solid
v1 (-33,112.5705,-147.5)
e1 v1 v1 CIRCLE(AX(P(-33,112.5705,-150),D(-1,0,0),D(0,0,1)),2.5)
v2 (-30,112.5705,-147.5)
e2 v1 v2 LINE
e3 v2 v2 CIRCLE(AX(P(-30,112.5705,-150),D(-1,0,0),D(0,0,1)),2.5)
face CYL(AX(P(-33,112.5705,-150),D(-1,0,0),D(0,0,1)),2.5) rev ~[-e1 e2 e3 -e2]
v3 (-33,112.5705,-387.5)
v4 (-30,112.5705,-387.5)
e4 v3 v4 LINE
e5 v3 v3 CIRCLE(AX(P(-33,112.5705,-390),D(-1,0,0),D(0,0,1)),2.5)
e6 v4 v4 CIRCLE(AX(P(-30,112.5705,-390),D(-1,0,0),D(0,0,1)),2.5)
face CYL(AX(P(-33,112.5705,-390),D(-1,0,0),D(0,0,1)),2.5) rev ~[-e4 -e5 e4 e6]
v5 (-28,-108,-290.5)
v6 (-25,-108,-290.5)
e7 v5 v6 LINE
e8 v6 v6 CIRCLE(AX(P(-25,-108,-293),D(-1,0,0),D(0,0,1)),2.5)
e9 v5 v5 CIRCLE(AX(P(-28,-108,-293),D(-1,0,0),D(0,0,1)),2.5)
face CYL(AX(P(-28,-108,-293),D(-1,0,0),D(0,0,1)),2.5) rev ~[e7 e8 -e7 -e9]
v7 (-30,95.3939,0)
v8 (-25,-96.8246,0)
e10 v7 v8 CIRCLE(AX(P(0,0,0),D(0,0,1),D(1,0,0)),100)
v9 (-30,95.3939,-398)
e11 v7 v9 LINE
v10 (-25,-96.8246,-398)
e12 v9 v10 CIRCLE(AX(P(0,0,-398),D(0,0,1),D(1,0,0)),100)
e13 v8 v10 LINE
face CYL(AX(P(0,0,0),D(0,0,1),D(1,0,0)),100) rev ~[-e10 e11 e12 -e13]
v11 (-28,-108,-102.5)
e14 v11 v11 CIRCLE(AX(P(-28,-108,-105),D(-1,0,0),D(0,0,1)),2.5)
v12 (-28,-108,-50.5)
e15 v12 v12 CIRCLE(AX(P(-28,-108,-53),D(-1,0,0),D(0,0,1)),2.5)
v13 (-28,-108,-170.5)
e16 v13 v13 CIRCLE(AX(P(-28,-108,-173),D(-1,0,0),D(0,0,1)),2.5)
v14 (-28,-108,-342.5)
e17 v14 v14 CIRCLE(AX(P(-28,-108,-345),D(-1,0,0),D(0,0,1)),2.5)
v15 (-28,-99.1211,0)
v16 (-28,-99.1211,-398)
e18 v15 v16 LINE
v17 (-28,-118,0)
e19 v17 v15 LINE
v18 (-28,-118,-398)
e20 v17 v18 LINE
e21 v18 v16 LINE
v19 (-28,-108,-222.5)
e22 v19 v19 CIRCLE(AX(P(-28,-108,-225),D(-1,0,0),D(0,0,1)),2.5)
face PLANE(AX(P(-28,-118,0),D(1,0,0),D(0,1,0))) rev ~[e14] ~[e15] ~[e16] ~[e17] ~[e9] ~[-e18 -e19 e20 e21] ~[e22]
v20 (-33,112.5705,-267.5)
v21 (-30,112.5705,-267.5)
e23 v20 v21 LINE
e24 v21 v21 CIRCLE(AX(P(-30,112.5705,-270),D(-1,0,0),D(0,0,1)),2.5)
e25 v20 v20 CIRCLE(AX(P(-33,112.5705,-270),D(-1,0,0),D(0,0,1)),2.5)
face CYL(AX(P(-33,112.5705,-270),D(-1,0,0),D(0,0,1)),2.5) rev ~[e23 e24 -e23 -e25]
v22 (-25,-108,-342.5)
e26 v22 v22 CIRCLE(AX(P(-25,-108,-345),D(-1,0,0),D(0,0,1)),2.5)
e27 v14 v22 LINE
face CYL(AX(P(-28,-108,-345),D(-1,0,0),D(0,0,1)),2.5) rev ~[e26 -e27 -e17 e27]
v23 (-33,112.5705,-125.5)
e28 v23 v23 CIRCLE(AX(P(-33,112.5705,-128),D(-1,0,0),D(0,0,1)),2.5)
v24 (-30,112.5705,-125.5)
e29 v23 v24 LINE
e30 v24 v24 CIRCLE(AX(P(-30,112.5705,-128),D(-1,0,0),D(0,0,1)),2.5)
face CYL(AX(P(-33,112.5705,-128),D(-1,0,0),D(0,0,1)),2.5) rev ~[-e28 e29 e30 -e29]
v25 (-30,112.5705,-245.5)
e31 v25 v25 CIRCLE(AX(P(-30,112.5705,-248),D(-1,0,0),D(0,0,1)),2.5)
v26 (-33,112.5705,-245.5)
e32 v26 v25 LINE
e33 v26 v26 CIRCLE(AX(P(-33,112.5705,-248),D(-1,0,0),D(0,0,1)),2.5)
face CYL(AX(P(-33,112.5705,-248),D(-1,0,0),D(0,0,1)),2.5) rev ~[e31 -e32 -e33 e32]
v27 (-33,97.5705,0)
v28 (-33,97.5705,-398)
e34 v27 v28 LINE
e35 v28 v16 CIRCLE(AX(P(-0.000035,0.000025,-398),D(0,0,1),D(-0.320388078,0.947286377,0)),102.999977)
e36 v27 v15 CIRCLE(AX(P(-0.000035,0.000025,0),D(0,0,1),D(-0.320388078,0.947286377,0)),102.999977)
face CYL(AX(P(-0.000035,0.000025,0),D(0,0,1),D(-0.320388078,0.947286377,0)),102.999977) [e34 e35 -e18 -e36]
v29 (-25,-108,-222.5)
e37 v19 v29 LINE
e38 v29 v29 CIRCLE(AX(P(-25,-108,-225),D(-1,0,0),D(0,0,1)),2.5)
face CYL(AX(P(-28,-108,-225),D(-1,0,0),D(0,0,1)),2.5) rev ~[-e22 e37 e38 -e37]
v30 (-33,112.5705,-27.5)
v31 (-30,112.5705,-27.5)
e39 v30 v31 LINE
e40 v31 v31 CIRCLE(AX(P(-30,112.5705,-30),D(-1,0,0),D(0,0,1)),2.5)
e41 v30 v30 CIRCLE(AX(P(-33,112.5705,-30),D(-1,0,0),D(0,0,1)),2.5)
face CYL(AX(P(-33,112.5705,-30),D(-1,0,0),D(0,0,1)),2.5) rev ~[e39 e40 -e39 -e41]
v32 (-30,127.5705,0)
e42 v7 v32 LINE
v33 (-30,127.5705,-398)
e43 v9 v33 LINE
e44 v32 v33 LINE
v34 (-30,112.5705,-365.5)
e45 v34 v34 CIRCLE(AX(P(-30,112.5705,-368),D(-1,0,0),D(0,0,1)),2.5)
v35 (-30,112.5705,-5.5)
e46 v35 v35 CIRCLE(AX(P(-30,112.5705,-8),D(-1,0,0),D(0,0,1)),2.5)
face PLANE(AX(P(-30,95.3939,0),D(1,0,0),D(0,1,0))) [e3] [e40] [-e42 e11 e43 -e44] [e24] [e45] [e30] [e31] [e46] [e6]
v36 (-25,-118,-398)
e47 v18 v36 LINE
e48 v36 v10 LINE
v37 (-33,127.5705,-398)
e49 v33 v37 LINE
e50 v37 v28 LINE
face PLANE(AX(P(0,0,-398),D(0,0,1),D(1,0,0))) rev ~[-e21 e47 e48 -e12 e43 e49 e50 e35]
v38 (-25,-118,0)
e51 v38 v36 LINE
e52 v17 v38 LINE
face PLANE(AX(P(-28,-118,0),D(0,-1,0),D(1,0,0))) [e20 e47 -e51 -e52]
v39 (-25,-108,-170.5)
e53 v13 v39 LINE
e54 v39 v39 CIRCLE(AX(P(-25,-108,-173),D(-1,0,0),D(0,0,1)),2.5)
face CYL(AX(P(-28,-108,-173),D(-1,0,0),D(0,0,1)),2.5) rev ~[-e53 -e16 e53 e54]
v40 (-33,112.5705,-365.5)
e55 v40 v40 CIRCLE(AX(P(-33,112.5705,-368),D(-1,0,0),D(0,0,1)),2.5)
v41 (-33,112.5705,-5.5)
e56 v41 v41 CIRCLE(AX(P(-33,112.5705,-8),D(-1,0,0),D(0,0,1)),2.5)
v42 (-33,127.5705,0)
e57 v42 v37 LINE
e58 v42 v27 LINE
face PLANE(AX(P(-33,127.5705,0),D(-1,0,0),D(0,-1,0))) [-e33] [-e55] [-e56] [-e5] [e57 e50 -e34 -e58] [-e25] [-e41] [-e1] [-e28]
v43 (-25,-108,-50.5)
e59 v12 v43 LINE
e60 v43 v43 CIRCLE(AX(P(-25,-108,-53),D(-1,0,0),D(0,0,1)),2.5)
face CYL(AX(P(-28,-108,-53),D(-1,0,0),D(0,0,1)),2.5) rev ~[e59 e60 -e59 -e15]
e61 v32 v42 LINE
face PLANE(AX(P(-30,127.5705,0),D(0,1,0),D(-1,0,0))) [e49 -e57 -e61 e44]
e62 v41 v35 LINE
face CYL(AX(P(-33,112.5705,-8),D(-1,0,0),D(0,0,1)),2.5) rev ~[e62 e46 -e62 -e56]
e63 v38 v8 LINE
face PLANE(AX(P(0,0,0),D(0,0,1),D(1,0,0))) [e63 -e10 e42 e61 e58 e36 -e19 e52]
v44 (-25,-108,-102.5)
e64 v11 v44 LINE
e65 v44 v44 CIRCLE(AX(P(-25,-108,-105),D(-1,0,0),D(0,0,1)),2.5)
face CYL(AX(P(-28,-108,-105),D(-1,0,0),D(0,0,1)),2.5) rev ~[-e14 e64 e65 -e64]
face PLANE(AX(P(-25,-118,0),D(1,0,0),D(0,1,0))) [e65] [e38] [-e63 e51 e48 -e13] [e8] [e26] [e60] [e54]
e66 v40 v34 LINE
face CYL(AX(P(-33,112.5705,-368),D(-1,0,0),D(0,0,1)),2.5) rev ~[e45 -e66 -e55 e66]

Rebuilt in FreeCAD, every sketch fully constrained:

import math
import FreeCAD as App
import Part
import Sketcher

V = App.Vector

doc = App.newDocument("Part")
params = doc.addObject("Spreadsheet::Sheet", "Params")
for row, (alias, value) in enumerate([
    ("sketch1_radius", "100 mm"),
    ("sketch1_width", "3 mm"),
    ("sketch1_height", "30 mm"),
    ("sketch1_radius2", "103 mm"),
    ("pad1_length", "398 mm"),
    ("sketch2_diameter", "5 mm"),
    ("pocket1_length", "3 mm"),
    ("linearpattern_pitch", "120 mm"),
    ("sketch3_diameter", "5 mm"),
    ("pocket2_length", "3 mm"),
    ("linearpattern2_pitch", "120 mm"),
], start=1):
    params.set(f"A{row}", alias)
    params.set(f"B{row}", "=" + value)
    params.setAlias(f"B{row}", alias)

body = doc.addObject("PartDesign::Body", "Body")

# Sketch on XY plane
sketch1 = doc.addObject("Sketcher::SketchObject", "Sketch")
body.addObject(sketch1)
sketch1.AttachmentSupport = (doc.XY_Plane, [""])
sketch1.MapMode = "FlatFace"
sketch1.addGeometry(Part.ArcOfCircle(Part.Circle(V(0, 0, 0), V(0, 0, 1), 100), math.radians(107), math.radians(256)), False)
sketch1.addGeometry(Part.LineSegment(V(-30, 95.4, 0), V(-30, 127.6, 0)), False)
sketch1.addGeometry(Part.LineSegment(V(-30, 127.6, 0), V(-33, 127.6, 0)), False)
sketch1.addGeometry(Part.LineSegment(V(-33, 127.6, 0), V(-33, 97.6, 0)), False)
sketch1.addGeometry(Part.ArcOfCircle(Part.Circle(V(0, 0, 0), V(0, 0, 1), 103), math.radians(109), math.radians(254)), False)
sketch1.addGeometry(Part.LineSegment(V(-28, -99.1, 0), V(-28, -118, 0)), False)
sketch1.addGeometry(Part.LineSegment(V(-28, -118, 0), V(-25, -118, 0)), False)
sketch1.addGeometry(Part.LineSegment(V(-25, -118, 0), V(-25, -96.8, 0)), False)
sketch1.addConstraint(Sketcher.Constraint("Coincident", 0, 1, 1, 1))
sketch1.addConstraint(Sketcher.Constraint("Coincident", 1, 2, 2, 1))
sketch1.addConstraint(Sketcher.Constraint("Coincident", 2, 2, 3, 1))
sketch1.addConstraint(Sketcher.Constraint("Coincident", 3, 2, 4, 1))
sketch1.addConstraint(Sketcher.Constraint("Coincident", 4, 2, 5, 1))
sketch1.addConstraint(Sketcher.Constraint("Coincident", 5, 2, 6, 1))
sketch1.addConstraint(Sketcher.Constraint("Coincident", 6, 2, 7, 1))
sketch1.addConstraint(Sketcher.Constraint("Coincident", 7, 2, 0, 2))
sketch1.addConstraint(Sketcher.Constraint("Vertical", 1))
sketch1.addConstraint(Sketcher.Constraint("Horizontal", 2))
sketch1.addConstraint(Sketcher.Constraint("Vertical", 3))
sketch1.addConstraint(Sketcher.Constraint("Vertical", 5))
sketch1.addConstraint(Sketcher.Constraint("Horizontal", 6))
sketch1.addConstraint(Sketcher.Constraint("Vertical", 7))
sketch1.addConstraint(Sketcher.Constraint("Coincident", 0, 3, -1, 1))
sketch1.addConstraint(Sketcher.Constraint("Coincident", 4, 3, -1, 1))
sketch1.addConstraint(Sketcher.Constraint("Equal", 2, 6))
sketch1.addConstraint(Sketcher.Constraint("Radius", 0, 100.0))
sketch1.addConstraint(Sketcher.Constraint("DistanceX", 2, 2, 2, 1, 3.0))
sketch1.addConstraint(Sketcher.Constraint("DistanceY", 3, 2, 3, 1, 30.0))
sketch1.addConstraint(Sketcher.Constraint("DistanceX", 0, 1, -1, 1, 30.0))
sketch1.addConstraint(Sketcher.Constraint("Radius", 4, 103.0))
sketch1.addConstraint(Sketcher.Constraint("DistanceX", 4, 2, -1, 1, 28.0))
sketch1.addConstraint(Sketcher.Constraint("DistanceY", 5, 2, -1, 1, 118.0))
sketch1.setExpression("Constraints[17]", "Params.sketch1_radius")
sketch1.setExpression("Constraints[18]", "Params.sketch1_width")
sketch1.setExpression("Constraints[19]", "Params.sketch1_height")
sketch1.setExpression("Constraints[21]", "Params.sketch1_radius2")
pad1 = doc.addObject("PartDesign::Pad", "Pad")
body.addObject(pad1)
pad1.Profile = sketch1
pad1.setExpression("Length", "Params.pad1_length")
pad1.Reversed = True

# Sketch on YZ plane
sketch2 = doc.addObject("Sketcher::SketchObject", "Sketch001")
body.addObject(sketch2)
sketch2.AttachmentSupport = (doc.YZ_Plane, [""])
sketch2.MapMode = "FlatFace"
sketch2.AttachmentOffset = App.Placement(V(0, 0, -28), App.Rotation())
sketch2.addGeometry(Part.Circle(V(-108, -53, 0), V(0, 0, 1), 2.5), False)
sketch2.addGeometry(Part.Circle(V(-108, -105, 0), V(0, 0, 1), 2.5), False)
sketch2.addConstraint(Sketcher.Constraint("Equal", 0, 1))
sketch2.addConstraint(Sketcher.Constraint("Vertical", 0, 3, 1, 3))
sketch2.addConstraint(Sketcher.Constraint("Diameter", 0, 5.0))
sketch2.addConstraint(Sketcher.Constraint("DistanceY", 0, 3, -1, 1, 53.0))
sketch2.addConstraint(Sketcher.Constraint("DistanceY", 1, 3, -1, 1, 105.0))
sketch2.addConstraint(Sketcher.Constraint("DistanceX", 0, 3, -1, 1, 108.0))
sketch2.setExpression("Constraints[2]", "Params.sketch2_diameter")
pocket1 = doc.addObject("PartDesign::Pocket", "Pocket")
body.addObject(pocket1)
pocket1.Profile = sketch2
pocket1.setExpression("Length", "Params.pocket1_length")
pocket1.Reversed = True
doc.recompute()

linearpattern = doc.addObject("PartDesign::LinearPattern", "LinearPattern")
body.addObject(linearpattern)
linearpattern.Originals = [pocket1]
linearpattern.Direction = (doc.Z_Axis, [""])
linearpattern.Mode = "offset"
linearpattern.setExpression("Offset", "Params.linearpattern_pitch")
linearpattern.Occurrences = 3
linearpattern.Reversed = True
body.Tip = linearpattern

# Sketch on YZ plane
sketch3 = doc.addObject("Sketcher::SketchObject", "Sketch002")
body.addObject(sketch3)
sketch3.AttachmentSupport = (doc.YZ_Plane, [""])
sketch3.MapMode = "FlatFace"
sketch3.AttachmentOffset = App.Placement(V(0, 0, -33), App.Rotation())
sketch3.addGeometry(Part.Circle(V(112.6, -8, 0), V(0, 0, 1), 2.5), False)
sketch3.addGeometry(Part.Circle(V(112.6, -30, 0), V(0, 0, 1), 2.5), False)
sketch3.addConstraint(Sketcher.Constraint("Equal", 0, 1))
sketch3.addConstraint(Sketcher.Constraint("Vertical", 0, 3, 1, 3))
sketch3.addConstraint(Sketcher.Constraint("Diameter", 0, 5.0))
sketch3.addConstraint(Sketcher.Constraint("DistanceY", 0, 3, -1, 1, 8.0))
sketch3.addConstraint(Sketcher.Constraint("DistanceY", 1, 3, -1, 1, 30.0))
sketch3.addConstraint(Sketcher.Constraint("DistanceX", -1, 1, 0, 3, 112.5705))
sketch3.setExpression("Constraints[2]", "Params.sketch3_diameter")
pocket2 = doc.addObject("PartDesign::Pocket", "Pocket001")
body.addObject(pocket2)
pocket2.Profile = sketch3
pocket2.setExpression("Length", "Params.pocket2_length")
pocket2.Reversed = True
doc.recompute()

linearpattern2 = doc.addObject("PartDesign::LinearPattern", "LinearPattern001")
body.addObject(linearpattern2)
linearpattern2.Originals = [pocket2]
linearpattern2.Direction = (doc.Z_Axis, [""])
linearpattern2.Mode = "offset"
linearpattern2.setExpression("Offset", "Params.linearpattern2_pitch")
linearpattern2.Occurrences = 4
linearpattern2.Reversed = True
body.Tip = linearpattern2

doc.recompute()
